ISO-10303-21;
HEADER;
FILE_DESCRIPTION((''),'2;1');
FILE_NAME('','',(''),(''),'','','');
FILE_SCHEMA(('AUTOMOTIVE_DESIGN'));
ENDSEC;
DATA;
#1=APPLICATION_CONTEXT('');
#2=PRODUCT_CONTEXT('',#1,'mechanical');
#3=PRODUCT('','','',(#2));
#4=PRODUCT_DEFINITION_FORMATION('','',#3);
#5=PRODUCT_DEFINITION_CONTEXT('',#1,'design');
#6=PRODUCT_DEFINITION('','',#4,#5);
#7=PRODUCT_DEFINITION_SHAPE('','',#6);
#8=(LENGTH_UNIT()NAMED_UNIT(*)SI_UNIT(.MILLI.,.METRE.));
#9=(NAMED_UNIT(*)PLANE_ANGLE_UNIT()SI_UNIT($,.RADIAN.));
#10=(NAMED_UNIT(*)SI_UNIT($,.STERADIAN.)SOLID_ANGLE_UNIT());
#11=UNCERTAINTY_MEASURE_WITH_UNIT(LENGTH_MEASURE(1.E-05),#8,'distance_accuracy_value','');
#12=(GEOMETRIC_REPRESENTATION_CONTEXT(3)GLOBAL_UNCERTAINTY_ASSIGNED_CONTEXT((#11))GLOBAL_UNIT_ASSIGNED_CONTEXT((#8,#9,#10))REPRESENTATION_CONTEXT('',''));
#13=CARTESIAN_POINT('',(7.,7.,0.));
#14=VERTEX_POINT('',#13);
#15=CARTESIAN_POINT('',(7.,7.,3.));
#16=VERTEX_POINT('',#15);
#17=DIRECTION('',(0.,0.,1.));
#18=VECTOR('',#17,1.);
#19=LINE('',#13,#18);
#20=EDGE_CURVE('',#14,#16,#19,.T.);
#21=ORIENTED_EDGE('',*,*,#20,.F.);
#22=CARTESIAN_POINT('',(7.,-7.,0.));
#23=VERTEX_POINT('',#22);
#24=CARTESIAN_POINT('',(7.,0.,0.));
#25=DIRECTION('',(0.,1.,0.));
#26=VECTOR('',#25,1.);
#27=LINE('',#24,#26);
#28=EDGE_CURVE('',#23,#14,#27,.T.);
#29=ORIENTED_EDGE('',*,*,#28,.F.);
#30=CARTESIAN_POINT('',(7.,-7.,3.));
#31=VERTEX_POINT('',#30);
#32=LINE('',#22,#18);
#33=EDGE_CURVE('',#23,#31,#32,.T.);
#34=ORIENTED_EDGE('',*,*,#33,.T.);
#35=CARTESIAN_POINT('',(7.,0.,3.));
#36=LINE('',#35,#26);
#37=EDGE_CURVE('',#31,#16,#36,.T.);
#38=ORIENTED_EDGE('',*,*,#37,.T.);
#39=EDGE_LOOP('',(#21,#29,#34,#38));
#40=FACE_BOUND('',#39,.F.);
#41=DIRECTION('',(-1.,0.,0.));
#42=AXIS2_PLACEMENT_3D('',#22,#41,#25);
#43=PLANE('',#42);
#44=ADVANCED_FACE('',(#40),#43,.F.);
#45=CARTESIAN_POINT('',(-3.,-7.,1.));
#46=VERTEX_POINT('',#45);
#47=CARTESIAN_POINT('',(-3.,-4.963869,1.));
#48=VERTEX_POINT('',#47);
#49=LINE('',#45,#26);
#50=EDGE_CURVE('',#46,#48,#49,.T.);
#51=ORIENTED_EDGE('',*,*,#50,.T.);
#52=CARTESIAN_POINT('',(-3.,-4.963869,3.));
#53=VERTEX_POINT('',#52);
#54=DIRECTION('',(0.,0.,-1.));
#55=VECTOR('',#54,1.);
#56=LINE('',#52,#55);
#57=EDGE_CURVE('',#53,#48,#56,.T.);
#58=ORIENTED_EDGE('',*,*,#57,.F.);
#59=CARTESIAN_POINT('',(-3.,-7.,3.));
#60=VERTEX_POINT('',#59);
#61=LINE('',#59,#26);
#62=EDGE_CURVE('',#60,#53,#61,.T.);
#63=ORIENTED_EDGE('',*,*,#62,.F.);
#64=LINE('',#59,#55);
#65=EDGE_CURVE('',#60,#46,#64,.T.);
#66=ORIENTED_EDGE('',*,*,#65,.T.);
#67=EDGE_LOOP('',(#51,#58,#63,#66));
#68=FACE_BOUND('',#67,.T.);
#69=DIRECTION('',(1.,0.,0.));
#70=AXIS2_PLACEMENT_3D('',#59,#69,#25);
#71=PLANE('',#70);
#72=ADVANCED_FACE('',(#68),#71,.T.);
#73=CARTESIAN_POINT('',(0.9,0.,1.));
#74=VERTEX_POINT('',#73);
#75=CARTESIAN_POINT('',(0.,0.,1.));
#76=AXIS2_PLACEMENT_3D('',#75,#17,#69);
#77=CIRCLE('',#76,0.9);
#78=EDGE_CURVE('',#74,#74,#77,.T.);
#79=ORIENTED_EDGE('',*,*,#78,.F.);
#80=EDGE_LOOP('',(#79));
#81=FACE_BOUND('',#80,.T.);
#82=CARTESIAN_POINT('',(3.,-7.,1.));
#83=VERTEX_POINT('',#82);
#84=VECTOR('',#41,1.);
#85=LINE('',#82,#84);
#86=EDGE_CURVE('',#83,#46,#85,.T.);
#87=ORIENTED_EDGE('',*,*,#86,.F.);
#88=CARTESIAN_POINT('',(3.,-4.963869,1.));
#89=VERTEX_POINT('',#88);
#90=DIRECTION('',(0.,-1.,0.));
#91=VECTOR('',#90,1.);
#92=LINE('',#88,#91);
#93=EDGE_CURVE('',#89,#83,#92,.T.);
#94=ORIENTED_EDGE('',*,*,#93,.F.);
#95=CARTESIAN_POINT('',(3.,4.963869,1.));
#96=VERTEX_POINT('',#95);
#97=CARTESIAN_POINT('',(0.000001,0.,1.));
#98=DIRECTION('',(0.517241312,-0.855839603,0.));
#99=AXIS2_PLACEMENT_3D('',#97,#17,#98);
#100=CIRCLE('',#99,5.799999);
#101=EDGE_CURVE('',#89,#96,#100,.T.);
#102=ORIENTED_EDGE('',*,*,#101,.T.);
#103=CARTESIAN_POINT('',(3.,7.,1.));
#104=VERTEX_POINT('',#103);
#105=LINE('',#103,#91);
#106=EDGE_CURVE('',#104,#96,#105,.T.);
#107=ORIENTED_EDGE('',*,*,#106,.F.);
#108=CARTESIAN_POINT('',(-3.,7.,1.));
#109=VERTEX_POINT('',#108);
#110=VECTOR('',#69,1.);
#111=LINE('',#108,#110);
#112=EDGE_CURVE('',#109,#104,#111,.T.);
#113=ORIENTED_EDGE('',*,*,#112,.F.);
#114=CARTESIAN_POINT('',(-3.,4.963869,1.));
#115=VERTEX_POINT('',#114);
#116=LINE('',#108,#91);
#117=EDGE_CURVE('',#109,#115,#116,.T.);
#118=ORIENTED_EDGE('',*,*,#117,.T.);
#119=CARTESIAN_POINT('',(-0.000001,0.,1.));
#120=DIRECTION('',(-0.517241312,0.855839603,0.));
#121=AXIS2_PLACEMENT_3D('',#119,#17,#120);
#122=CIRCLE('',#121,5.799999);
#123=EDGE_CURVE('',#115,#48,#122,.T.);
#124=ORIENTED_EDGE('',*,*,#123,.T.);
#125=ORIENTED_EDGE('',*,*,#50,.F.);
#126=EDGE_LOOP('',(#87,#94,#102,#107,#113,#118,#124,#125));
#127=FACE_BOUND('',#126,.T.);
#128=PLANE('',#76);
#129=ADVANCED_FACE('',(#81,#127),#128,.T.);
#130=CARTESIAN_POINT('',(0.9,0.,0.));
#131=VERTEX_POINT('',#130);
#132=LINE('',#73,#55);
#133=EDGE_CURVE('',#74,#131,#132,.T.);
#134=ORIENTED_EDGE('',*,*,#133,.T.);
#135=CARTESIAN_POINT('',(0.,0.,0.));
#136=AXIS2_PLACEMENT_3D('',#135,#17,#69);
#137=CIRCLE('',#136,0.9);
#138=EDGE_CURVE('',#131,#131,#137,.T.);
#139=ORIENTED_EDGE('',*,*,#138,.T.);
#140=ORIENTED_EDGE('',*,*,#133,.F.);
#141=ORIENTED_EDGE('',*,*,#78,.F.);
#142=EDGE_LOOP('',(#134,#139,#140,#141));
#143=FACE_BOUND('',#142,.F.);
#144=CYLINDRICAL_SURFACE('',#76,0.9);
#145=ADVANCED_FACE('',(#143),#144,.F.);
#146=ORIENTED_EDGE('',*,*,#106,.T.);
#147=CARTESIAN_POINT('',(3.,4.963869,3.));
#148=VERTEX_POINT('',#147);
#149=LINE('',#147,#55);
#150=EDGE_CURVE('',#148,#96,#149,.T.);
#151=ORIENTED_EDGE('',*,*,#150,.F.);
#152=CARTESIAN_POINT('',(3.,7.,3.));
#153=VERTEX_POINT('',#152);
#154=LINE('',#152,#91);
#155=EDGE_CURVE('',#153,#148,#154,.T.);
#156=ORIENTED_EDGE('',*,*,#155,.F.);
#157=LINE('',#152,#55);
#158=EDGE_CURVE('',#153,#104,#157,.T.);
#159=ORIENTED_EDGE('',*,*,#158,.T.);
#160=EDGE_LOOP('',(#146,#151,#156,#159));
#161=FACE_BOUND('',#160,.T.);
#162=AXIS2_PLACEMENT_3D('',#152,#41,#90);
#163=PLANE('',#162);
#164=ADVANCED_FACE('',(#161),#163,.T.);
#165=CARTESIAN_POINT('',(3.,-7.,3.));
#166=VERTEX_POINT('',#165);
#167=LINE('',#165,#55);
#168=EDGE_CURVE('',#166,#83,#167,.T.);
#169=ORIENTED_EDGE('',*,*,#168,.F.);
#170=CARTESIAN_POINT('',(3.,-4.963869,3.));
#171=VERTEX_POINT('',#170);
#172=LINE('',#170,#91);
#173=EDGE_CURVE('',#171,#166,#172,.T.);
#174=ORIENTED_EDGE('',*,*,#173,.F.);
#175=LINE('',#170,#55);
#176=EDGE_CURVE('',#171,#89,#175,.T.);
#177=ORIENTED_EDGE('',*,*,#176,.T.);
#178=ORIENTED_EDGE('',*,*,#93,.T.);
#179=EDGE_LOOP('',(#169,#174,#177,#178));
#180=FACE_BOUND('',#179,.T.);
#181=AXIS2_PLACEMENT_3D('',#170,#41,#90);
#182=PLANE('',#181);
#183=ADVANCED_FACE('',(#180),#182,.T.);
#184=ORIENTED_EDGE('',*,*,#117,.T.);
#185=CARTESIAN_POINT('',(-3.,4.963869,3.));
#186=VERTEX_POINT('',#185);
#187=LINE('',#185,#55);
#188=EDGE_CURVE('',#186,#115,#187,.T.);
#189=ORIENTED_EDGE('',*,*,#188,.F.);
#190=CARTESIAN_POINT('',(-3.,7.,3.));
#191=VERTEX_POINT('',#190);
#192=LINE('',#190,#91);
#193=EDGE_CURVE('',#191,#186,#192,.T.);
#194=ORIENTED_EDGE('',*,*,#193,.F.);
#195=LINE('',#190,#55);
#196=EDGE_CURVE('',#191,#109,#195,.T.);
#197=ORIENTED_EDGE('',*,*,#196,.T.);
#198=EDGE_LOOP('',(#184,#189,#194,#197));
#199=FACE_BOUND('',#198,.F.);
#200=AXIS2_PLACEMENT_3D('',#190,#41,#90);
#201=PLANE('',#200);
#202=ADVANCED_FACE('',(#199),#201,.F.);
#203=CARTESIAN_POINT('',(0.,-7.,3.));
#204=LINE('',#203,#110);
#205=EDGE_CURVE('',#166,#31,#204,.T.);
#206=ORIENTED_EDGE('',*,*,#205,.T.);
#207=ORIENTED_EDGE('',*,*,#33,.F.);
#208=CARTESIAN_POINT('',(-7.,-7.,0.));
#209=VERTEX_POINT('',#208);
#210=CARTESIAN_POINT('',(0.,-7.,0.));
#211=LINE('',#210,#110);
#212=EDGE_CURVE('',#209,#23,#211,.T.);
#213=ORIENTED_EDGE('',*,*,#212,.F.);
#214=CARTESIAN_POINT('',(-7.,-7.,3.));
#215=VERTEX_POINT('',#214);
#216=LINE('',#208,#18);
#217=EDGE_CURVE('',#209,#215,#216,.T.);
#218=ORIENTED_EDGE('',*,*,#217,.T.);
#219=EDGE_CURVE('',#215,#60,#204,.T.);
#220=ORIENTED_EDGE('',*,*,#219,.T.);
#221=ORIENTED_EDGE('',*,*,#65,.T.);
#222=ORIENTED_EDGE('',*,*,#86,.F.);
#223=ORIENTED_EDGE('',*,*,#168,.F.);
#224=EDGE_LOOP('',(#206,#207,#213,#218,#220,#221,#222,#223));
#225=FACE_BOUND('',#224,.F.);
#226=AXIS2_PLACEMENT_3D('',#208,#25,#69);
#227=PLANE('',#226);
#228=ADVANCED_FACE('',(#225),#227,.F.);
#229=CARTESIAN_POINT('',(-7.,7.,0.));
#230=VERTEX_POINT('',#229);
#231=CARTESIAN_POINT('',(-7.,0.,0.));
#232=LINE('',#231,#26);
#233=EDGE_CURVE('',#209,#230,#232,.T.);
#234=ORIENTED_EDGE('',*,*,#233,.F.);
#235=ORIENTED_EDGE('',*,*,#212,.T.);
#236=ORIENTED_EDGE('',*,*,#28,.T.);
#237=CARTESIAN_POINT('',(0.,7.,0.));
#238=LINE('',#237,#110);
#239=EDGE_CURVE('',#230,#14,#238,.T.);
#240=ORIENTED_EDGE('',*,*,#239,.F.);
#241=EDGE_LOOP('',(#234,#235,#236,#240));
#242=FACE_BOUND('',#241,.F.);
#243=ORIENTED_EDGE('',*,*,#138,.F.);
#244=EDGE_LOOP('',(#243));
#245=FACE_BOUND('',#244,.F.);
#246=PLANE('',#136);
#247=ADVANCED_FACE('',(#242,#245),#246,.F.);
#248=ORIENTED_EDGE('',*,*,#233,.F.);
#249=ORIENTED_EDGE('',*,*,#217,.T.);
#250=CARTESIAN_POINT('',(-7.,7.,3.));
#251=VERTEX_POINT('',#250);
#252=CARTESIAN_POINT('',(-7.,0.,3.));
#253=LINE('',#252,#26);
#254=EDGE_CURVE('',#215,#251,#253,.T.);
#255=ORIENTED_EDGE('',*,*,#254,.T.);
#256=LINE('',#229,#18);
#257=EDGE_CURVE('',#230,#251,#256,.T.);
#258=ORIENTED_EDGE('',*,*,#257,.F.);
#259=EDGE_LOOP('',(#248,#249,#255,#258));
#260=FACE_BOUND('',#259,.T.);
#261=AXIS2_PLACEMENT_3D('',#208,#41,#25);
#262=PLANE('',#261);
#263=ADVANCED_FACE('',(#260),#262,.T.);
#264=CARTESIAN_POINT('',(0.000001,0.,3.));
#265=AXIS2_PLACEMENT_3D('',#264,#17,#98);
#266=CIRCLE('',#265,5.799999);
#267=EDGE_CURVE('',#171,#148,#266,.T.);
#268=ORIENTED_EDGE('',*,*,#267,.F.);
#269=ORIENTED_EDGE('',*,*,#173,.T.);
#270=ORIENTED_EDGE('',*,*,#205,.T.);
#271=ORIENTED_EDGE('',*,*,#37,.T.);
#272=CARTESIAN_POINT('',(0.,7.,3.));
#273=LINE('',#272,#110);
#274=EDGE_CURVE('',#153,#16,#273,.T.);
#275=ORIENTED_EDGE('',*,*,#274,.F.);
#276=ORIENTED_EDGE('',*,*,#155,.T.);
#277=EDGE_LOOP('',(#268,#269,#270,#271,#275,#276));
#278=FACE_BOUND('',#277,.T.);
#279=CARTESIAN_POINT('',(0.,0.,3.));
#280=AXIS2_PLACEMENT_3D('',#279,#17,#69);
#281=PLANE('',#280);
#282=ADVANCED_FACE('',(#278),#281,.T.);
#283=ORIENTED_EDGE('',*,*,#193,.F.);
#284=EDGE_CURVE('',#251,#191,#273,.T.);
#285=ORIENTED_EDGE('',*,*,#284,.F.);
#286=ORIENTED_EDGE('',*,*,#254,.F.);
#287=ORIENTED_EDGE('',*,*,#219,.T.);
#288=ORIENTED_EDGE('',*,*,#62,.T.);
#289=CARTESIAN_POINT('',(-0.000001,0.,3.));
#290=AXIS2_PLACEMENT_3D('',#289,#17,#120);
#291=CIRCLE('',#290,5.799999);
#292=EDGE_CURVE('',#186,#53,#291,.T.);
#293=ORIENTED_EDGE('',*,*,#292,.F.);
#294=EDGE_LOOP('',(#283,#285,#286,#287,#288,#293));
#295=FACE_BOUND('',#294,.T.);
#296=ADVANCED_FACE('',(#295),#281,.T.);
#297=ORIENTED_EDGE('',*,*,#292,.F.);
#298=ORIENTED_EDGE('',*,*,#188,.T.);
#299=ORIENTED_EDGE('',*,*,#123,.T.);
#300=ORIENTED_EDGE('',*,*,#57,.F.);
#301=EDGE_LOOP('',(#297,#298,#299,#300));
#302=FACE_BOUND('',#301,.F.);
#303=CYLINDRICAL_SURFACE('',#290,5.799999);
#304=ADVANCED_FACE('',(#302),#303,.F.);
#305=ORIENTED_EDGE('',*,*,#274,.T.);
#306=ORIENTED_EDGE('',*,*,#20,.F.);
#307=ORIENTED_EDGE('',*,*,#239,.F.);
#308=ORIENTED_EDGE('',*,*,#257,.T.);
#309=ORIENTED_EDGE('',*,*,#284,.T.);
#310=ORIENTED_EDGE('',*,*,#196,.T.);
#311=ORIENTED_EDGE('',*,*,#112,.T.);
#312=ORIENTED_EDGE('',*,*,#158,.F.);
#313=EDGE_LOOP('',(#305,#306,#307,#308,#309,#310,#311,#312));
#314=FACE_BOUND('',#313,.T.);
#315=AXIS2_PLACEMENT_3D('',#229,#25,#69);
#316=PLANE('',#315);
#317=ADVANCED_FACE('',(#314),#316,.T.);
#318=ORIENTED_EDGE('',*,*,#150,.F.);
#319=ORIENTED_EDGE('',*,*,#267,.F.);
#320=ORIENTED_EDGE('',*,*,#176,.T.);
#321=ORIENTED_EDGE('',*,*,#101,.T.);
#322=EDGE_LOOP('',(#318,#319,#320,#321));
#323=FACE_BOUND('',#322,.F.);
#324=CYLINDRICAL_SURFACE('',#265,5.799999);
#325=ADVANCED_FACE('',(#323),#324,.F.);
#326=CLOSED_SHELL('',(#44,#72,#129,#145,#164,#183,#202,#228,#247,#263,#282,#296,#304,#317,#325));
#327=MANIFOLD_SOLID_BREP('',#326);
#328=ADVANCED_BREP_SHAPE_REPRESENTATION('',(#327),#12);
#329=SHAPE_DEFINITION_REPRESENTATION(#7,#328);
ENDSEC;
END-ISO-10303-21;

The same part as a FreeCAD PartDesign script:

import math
import FreeCAD as App
import Part
import Sketcher

doc = App.newDocument("Part")
body = doc.addObject("PartDesign::Body", "Body")

sketch1 = doc.addObject("Sketcher::SketchObject", "Sketch")
body.addObject(sketch1)
sketch1.AttachmentSupport = (doc.XY_Plane, [""])
sketch1.MapMode = "FlatFace"
sketch1.addGeometry(Part.LineSegment(App.Vector(-7, 7, 0), App.Vector(-7, -7, 0)), False)
sketch1.addGeometry(Part.LineSegment(App.Vector(-7, -7, 0), App.Vector(7, -7, 0)), False)
sketch1.addGeometry(Part.LineSegment(App.Vector(7, -7, 0), App.Vector(7, 7, 0)), False)
sketch1.addGeometry(Part.LineSegment(App.Vector(7, 7, 0), App.Vector(-7, 7, 0)), False)
sketch1.addConstraint(Sketcher.Constraint("Coincident", 0, 2, 1, 1))
sketch1.addConstraint(Sketcher.Constraint("Coincident", 1, 2, 2, 1))
sketch1.addConstraint(Sketcher.Constraint("Coincident", 2, 2, 3, 1))
sketch1.addConstraint(Sketcher.Constraint("Coincident", 3, 2, 0, 1))
sketch1.addConstraint(Sketcher.Constraint("Vertical", 0))
sketch1.addConstraint(Sketcher.Constraint("Horizontal", 1))
sketch1.addConstraint(Sketcher.Constraint("Vertical", 2))
sketch1.addConstraint(Sketcher.Constraint("Horizontal", 3))
sketch1.addConstraint(Sketcher.Constraint("Symmetric", 0, 2, 2, 2, -1, 1))
sketch1.addConstraint(Sketcher.Constraint("Equal", 3, 0))
sketch1.addConstraint(Sketcher.Constraint("DistanceX", 1, 1, 1, 2, 14.0))
pad1 = doc.addObject("PartDesign::Pad", "Pad")
body.addObject(pad1)
pad1.Profile = sketch1
pad1.Length = 3

sketch2 = doc.addObject("Sketcher::SketchObject", "Sketch001")
body.addObject(sketch2)
sketch2.AttachmentSupport = (doc.XY_Plane, [""])
sketch2.MapMode = "FlatFace"
sketch2.AttachmentOffset = App.Placement(App.Vector(0, 0, 3), App.Rotation())
sketch2.addGeometry(Part.LineSegment(App.Vector(-3, 7, 0), App.Vector(-3, 4.963869, 0)), False)
sketch2.addGeometry(Part.ArcOfCircle(Part.Circle(App.Vector(-0.000001, 0, 0), App.Vector(0, 0, 1), 5.799999), math.radians(121.147385), math.radians(238.852615)), False)
sketch2.addGeometry(Part.LineSegment(App.Vector(-3, -4.963869, 0), App.Vector(-3, -7, 0)), False)
sketch2.addGeometry(Part.LineSegment(App.Vector(-3, -7, 0), App.Vector(3, -7, 0)), False)
sketch2.addGeometry(Part.LineSegment(App.Vector(3, -7, 0), App.Vector(3, -4.963869, 0)), False)
sketch2.addGeometry(Part.ArcOfCircle(Part.Circle(App.Vector(0.000001, 0, 0), App.Vector(0, 0, 1), 5.799999), math.radians(-58.852615), math.radians(58.852615)), False)
sketch2.addGeometry(Part.LineSegment(App.Vector(3, 4.963869, 0), App.Vector(3, 7, 0)), False)
sketch2.addGeometry(Part.LineSegment(App.Vector(3, 7, 0), App.Vector(-3, 7, 0)), False)
sketch2.addConstraint(Sketcher.Constraint("Coincident", 0, 2, 1, 1))
sketch2.addConstraint(Sketcher.Constraint("Coincident", 1, 2, 2, 1))
sketch2.addConstraint(Sketcher.Constraint("Coincident", 2, 2, 3, 1))
sketch2.addConstraint(Sketcher.Constraint("Coincident", 3, 2, 4, 1))
sketch2.addConstraint(Sketcher.Constraint("Coincident", 4, 2, 5, 1))
sketch2.addConstraint(Sketcher.Constraint("Coincident", 5, 2, 6, 1))
sketch2.addConstraint(Sketcher.Constraint("Coincident", 6, 2, 7, 1))
sketch2.addConstraint(Sketcher.Constraint("Coincident", 7, 2, 0, 1))
sketch2.addConstraint(Sketcher.Constraint("Vertical", 0))
sketch2.addConstraint(Sketcher.Constraint("Vertical", 2))
sketch2.addConstraint(Sketcher.Constraint("Horizontal", 3))
sketch2.addConstraint(Sketcher.Constraint("Vertical", 4))
sketch2.addConstraint(Sketcher.Constraint("Vertical", 6))
sketch2.addConstraint(Sketcher.Constraint("Horizontal", 7))
sketch2.addConstraint(Sketcher.Constraint("Coincident", 1, 3, -1, 1))
sketch2.addConstraint(Sketcher.Constraint("Coincident", 5, 3, -1, 1))
sketch2.addConstraint(Sketcher.Constraint("Equal", 1, 5))
sketch2.addConstraint(Sketcher.Constraint("Symmetric", 2, 2, 6, 2, -1, 1))
sketch2.addConstraint(Sketcher.Constraint("Horizontal", 1, 2, 4, 2))
sketch2.addConstraint(Sketcher.Constraint("Horizontal", 0, 2, 5, 2))
sketch2.addConstraint(Sketcher.Constraint("Radius", 1, 5.799999))
sketch2.addConstraint(Sketcher.Constraint("DistanceX", 3, 1, 3, 2, 6.0))
sketch2.addConstraint(Sketcher.Constraint("DistanceY", 2, 2, -1, 1, 7.0))
pocket1 = doc.addObject("PartDesign::Pocket", "Pocket")
body.addObject(pocket1)
pocket1.Profile = sketch2
pocket1.Length = 2

sketch3 = doc.addObject("Sketcher::SketchObject", "Sketch002")
body.addObject(sketch3)
sketch3.AttachmentSupport = (doc.XY_Plane, [""])
sketch3.MapMode = "FlatFace"
sketch3.AttachmentOffset = App.Placement(App.Vector(0, 0, 1), App.Rotation())
sketch3.addGeometry(Part.Circle(App.Vector(0, 0, 0), App.Vector(0, 0, 1), 0.9), False)
sketch3.addConstraint(Sketcher.Constraint("Coincident", 0, 3, -1, 1))
sketch3.addConstraint(Sketcher.Constraint("Diameter", 0, 1.8))
pocket2 = doc.addObject("PartDesign::Pocket", "Pocket001")
body.addObject(pocket2)
pocket2.Profile = sketch3
pocket2.Type = "ThroughAll"

doc.recompute()
